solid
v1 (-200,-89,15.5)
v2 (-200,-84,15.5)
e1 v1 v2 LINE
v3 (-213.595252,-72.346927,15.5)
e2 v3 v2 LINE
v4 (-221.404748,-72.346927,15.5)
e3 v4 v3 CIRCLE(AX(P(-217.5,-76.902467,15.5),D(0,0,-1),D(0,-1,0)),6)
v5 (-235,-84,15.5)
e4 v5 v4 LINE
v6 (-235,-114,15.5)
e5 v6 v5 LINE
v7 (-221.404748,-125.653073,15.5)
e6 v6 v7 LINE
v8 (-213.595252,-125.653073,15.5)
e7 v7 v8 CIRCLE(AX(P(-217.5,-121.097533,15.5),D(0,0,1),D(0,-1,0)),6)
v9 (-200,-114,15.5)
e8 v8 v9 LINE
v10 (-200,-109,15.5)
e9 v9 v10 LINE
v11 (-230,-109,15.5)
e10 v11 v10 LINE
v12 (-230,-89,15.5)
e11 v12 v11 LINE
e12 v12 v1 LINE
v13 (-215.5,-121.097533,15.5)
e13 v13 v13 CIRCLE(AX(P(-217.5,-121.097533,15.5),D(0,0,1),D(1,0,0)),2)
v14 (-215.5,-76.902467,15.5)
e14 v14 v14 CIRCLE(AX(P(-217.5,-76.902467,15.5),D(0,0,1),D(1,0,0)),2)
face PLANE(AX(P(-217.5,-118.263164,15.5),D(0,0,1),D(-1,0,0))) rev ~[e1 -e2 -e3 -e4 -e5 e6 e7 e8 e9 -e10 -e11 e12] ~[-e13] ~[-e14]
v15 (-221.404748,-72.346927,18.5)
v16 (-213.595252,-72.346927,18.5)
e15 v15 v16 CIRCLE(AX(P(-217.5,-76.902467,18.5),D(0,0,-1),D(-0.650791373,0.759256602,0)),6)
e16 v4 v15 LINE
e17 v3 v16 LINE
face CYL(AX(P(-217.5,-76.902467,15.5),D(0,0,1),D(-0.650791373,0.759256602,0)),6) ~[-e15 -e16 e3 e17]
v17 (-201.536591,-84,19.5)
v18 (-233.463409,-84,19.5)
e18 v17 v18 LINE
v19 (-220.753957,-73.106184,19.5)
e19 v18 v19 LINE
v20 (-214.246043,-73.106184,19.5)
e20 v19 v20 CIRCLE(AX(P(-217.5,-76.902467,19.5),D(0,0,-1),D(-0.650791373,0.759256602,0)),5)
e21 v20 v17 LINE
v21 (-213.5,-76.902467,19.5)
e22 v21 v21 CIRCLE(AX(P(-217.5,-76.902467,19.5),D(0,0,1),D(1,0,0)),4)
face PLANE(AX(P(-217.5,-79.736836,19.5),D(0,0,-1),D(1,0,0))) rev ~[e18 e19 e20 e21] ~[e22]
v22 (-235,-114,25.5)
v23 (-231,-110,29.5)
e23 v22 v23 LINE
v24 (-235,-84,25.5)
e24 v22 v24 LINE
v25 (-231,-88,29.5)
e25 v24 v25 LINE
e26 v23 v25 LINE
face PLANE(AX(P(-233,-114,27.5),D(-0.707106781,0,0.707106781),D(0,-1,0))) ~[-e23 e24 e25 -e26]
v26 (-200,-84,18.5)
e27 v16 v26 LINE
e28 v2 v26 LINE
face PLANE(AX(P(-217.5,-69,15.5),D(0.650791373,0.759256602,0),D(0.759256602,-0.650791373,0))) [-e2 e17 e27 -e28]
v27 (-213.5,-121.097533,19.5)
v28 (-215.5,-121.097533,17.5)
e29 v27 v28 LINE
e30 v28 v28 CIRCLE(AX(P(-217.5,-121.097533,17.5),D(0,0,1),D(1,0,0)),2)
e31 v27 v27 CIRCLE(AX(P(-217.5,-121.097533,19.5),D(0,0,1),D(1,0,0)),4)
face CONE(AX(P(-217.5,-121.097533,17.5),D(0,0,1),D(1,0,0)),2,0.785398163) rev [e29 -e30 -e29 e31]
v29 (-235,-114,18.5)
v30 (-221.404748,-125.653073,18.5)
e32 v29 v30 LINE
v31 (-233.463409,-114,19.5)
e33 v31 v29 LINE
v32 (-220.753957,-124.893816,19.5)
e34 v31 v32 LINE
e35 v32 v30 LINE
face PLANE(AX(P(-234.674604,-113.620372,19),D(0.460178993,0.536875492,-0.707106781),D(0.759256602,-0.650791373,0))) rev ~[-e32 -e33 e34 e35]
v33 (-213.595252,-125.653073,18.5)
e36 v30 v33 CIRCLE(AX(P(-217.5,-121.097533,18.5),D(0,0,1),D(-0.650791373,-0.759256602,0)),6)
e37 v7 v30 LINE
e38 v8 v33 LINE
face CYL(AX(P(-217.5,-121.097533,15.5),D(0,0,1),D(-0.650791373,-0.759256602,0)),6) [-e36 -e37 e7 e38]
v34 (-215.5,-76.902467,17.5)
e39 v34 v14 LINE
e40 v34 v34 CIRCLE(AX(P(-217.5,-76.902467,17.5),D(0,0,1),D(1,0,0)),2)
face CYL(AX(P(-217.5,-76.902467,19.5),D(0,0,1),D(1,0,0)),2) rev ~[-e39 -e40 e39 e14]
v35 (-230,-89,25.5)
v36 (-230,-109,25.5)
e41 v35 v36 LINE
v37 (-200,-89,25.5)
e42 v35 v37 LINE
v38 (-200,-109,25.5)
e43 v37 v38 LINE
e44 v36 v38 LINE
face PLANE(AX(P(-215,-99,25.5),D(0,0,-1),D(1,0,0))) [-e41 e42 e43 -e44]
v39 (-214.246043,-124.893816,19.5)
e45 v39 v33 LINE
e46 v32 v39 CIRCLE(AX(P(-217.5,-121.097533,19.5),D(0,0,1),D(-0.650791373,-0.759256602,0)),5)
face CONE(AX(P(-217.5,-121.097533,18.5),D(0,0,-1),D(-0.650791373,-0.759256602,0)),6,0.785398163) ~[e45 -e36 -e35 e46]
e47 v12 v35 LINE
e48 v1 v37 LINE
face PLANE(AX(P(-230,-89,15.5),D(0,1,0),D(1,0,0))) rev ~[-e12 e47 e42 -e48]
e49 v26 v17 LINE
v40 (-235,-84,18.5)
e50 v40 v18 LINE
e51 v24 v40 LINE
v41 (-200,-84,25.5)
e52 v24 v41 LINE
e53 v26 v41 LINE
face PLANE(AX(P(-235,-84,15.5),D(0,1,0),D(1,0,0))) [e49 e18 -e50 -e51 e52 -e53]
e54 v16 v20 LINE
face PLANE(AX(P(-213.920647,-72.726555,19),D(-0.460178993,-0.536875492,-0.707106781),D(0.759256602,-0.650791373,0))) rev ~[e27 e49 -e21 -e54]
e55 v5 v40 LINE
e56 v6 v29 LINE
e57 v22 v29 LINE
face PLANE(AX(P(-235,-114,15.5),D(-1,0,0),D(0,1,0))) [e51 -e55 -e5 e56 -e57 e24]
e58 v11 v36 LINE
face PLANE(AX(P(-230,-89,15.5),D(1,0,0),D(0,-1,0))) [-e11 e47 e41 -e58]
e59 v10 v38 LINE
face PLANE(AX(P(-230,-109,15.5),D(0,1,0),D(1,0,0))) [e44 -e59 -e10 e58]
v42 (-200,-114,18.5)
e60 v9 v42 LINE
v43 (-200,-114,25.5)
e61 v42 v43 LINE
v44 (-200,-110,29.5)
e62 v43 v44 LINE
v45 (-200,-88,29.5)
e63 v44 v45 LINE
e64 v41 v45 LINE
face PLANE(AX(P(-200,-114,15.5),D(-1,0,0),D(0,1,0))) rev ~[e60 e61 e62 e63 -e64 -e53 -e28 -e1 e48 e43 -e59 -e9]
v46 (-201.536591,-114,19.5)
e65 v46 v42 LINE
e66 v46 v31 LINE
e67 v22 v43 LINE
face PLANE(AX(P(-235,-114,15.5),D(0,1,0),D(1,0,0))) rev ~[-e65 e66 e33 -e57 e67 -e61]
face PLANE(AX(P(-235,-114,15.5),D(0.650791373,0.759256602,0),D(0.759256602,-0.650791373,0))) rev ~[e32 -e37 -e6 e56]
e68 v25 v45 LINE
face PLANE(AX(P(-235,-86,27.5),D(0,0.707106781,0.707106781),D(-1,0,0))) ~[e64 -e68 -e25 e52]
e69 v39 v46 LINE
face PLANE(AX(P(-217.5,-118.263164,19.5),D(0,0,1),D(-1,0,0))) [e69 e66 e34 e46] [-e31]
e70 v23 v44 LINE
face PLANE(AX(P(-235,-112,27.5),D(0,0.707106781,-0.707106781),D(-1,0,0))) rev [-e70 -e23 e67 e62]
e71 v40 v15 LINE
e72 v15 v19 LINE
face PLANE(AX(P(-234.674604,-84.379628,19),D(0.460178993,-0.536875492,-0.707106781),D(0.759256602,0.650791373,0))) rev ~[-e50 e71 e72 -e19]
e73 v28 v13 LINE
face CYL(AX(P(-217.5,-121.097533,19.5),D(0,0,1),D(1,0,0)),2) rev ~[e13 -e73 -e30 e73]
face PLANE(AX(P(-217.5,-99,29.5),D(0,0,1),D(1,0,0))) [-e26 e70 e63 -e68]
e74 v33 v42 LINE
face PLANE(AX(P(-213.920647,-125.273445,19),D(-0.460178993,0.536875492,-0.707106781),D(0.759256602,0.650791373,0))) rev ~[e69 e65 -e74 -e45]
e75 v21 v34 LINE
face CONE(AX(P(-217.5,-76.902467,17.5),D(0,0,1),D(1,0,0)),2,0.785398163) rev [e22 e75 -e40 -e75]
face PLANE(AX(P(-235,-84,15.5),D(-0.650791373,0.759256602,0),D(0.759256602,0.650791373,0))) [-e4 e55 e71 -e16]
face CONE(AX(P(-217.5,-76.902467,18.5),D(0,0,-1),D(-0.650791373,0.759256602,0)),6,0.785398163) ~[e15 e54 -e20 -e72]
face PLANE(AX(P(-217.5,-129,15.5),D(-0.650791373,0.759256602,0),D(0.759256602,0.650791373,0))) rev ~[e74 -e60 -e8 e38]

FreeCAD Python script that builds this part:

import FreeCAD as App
import Part
import Sketcher

V = App.Vector
Q = App.Units.Quantity


def edges_at(feature, points):
    """Names of the edges that pass closest to the given points."""
    edges = feature.Shape.Edges
    near = lambda p: min(range(len(edges)), key=lambda i: edges[i].distToShape(Part.Vertex(*p))[0])
    return sorted({f"Edge{near(p) + 1}" for p in points})

doc = App.newDocument("Part")
body = doc.addObject("PartDesign::Body", "Body")

# Sketch on XY plane
sketch1 = body.newObject("Sketcher::SketchObject", "Sketch")
sketch1.AttachmentSupport = (doc.getObject("XY_Plane"), [""])
sketch1.MapMode = "FlatFace"
sketch1.addGeometry(Part.LineSegment(V(-235, -84, 0), V(-235, -114, 0)), False)
sketch1.addGeometry(Part.LineSegment(V(-235, -114, 0), V(-200, -114, 0)), False)
sketch1.addGeometry(Part.LineSegment(V(-200, -114, 0), V(-200, -84, 0)), False)
sketch1.addGeometry(Part.LineSegment(V(-200, -84, 0), V(-235, -84, 0)), False)
sketch1.addConstraint(Sketcher.Constraint("Coincident", 0, 2, 1, 1))
sketch1.addConstraint(Sketcher.Constraint("Coincident", 1, 2, 2, 1))
sketch1.addConstraint(Sketcher.Constraint("Coincident", 2, 2, 3, 1))
sketch1.addConstraint(Sketcher.Constraint("Coincident", 3, 2, 0, 1))
sketch1.addConstraint(Sketcher.Constraint("Vertical", 0))
sketch1.addConstraint(Sketcher.Constraint("Horizontal", 1))
sketch1.addConstraint(Sketcher.Constraint("Vertical", 2))
sketch1.addConstraint(Sketcher.Constraint("Horizontal", 3))
sketch1.addConstraint(Sketcher.Constraint("DistanceX", 1, 1, 1, 2, Q("35 mm")))
sketch1.addConstraint(Sketcher.Constraint("DistanceY", 0, 2, 0, 1, Q("30 mm")))
sketch1.addConstraint(Sketcher.Constraint("DistanceX", 0, 2, -1, 1, Q("235 mm")))
sketch1.addConstraint(Sketcher.Constraint("DistanceY", 0, 2, -1, 1, Q("114 mm")))
pad1 = body.newObject("PartDesign::Pad", "Pad")
pad1.Profile = sketch1
pad1.Length = 14

# Sketch on XY plane
sketch2 = body.newObject("Sketcher::SketchObject", "Sketch001")
sketch2.AttachmentSupport = (doc.getObject("XY_Plane"), [""])
sketch2.MapMode = "FlatFace"
sketch2.addGeometry(Part.LineSegment(V(-230, -109, 0), V(-230, -89, 0)), False)
sketch2.addGeometry(Part.LineSegment(V(-230, -89, 0), V(-200, -89, 0)), False)
sketch2.addGeometry(Part.LineSegment(V(-200, -89, 0), V(-200, -109, 0)), False)
sketch2.addGeometry(Part.LineSegment(V(-200, -109, 0), V(-230, -109, 0)), False)
sketch2.addConstraint(Sketcher.Constraint("Coincident", 0, 2, 1, 1))
sketch2.addConstraint(Sketcher.Constraint("Coincident", 1, 2, 2, 1))
sketch2.addConstraint(Sketcher.Constraint("Coincident", 2, 2, 3, 1))
sketch2.addConstraint(Sketcher.Constraint("Coincident", 3, 2, 0, 1))
sketch2.addConstraint(Sketcher.Constraint("Vertical", 0))
sketch2.addConstraint(Sketcher.Constraint("Horizontal", 1))
sketch2.addConstraint(Sketcher.Constraint("Vertical", 2))
sketch2.addConstraint(Sketcher.Constraint("Horizontal", 3))
sketch2.addConstraint(Sketcher.Constraint("DistanceX", 1, 1, 1, 2, Q("30 mm")))
sketch2.addConstraint(Sketcher.Constraint("DistanceY", 0, 1, 0, 2, Q("20 mm")))
sketch2.addConstraint(Sketcher.Constraint("DistanceX", 0, 2, -1, 1, Q("230 mm")))
sketch2.addConstraint(Sketcher.Constraint("DistanceY", 0, 2, -1, 1, Q("89 mm")))
pocket1 = body.newObject("PartDesign::Pocket", "Pocket")
pocket1.Profile = sketch2
pocket1.Length = 10
pocket1.Reversed = True

# Sketch on XY plane
sketch3 = body.newObject("Sketcher::SketchObject", "Sketch002")
sketch3.AttachmentSupport = (doc.getObject("XY_Plane"), [""])
sketch3.MapMode = "FlatFace"
sketch3.addGeometry(Part.LineSegment(V(-217.5, -129, 0), V(-235, -114, 0)), False)
sketch3.addGeometry(Part.LineSegment(V(-235, -114, 0), V(-200, -114, 0)), False)
sketch3.addGeometry(Part.LineSegment(V(-200, -114, 0), V(-217.5, -129, 0)), False)
sketch3.addGeometry(Part.LineSegment(V(-235, -84, 0), V(-217.5, -69, 0)), False)
sketch3.addGeometry(Part.LineSegment(V(-217.5, -69, 0), V(-200, -84, 0)), False)
sketch3.addGeometry(Part.LineSegment(V(-200, -84, 0), V(-235, -84, 0)), False)
sketch3.addConstraint(Sketcher.Constraint("Coincident", 0, 2, 1, 1))
sketch3.addConstraint(Sketcher.Constraint("Coincident", 1, 2, 2, 1))
sketch3.addConstraint(Sketcher.Constraint("Coincident", 2, 2, 0, 1))
sketch3.addConstraint(Sketcher.Constraint("Coincident", 3, 2, 4, 1))
sketch3.addConstraint(Sketcher.Constraint("Coincident", 4, 2, 5, 1))
sketch3.addConstraint(Sketcher.Constraint("Coincident", 5, 2, 3, 1))
sketch3.addConstraint(Sketcher.Constraint("Horizontal", 1))
sketch3.addConstraint(Sketcher.Constraint("Horizontal", 5))
sketch3.addConstraint(Sketcher.Constraint("Parallel", 2, 3))
sketch3.addConstraint(Sketcher.Constraint("Parallel", 0, 4))
sketch3.addConstraint(Sketcher.Constraint("Vertical", 2, 2, 3, 2))
sketch3.addConstraint(Sketcher.Constraint("Vertical", 1, 2, 4, 2))
sketch3.addConstraint(Sketcher.Constraint("Vertical", 0, 2, 5, 2))
sketch3.addConstraint(Sketcher.Constraint("DistanceX", 1, 1, 1, 2, Q("35 mm")))
sketch3.addConstraint(Sketcher.Constraint("DistanceX", 0, 2, -1, 1, Q("235 mm")))
sketch3.addConstraint(Sketcher.Constraint("DistanceY", 0, 2, -1, 1, Q("114 mm")))
sketch3.addConstraint(Sketcher.Constraint("DistanceY", 2, 2, -1, 1, Q("129 mm")))
sketch3.addConstraint(Sketcher.Constraint("DistanceY", 3, 2, -1, 1, Q("69 mm")))
pad2 = body.newObject("PartDesign::Pad", "Pad001")
pad2.Profile = sketch3
pad2.Length = 4
doc.recompute()

fillet = body.newObject("PartDesign::Fillet", "Fillet")
fillet.Base = (pad2, edges_at(pad2, [(-217.5, -129, 2), (-217.5, -69, 2)]))
fillet.Radius = 6

# Sketch on XY plane
sketch4 = body.newObject("Sketcher::SketchObject", "Sketch003")
sketch4.AttachmentSupport = (doc.getObject("XY_Plane"), [""])
sketch4.MapMode = "FlatFace"
sketch4.AttachmentOffset = App.Placement(V(0, 0, 4), App.Rotation())
sketch4.addGeometry(Part.Circle(V(-217.5, -76.902467, 0), V(0, 0, 1), 2), False)
sketch4.addGeometry(Part.Circle(V(-217.5, -121.097533, 0), V(0, 0, 1), 2), False)
sketch4.addConstraint(Sketcher.Constraint("Equal", 0, 1))
sketch4.addConstraint(Sketcher.Constraint("Vertical", 0, 3, 1, 3))
sketch4.addConstraint(Sketcher.Constraint("Diameter", 0, Q("4 mm")))
sketch4.addConstraint(Sketcher.Constraint("DistanceX", 0, 3, -1, 1, Q("217.5 mm")))
sketch4.addConstraint(Sketcher.Constraint("DistanceY", 0, 3, -1, 1, Q("76.902467 mm")))
sketch4.addConstraint(Sketcher.Constraint("DistanceY", 1, 3, -1, 1, Q("121.097533 mm")))
pocket2 = body.newObject("PartDesign::Pocket", "Pocket001")
pocket2.Profile = sketch4
pocket2.Type = "ThroughAll"
doc.recompute()

chamfer = body.newObject("PartDesign::Chamfer", "Chamfer")
chamfer.Base = (pocket2, edges_at(pocket2, [(-235, -99, 14), (-217.5, -114, 14), (-217.5, -84, 14)]))
chamfer.Size = 4
doc.recompute()

chamfer2 = body.newObject("PartDesign::Chamfer", "Chamfer001")
chamfer2.Base = (chamfer, edges_at(chamfer, [(-219.5, -121.098, 4), (-219.5, -76.902, 4)]))
chamfer2.Size = 2
doc.recompute()

chamfer3 = body.newObject("PartDesign::Chamfer", "Chamfer002")
chamfer3.Base = (chamfer2, edges_at(chamfer2, [(-217.5, -127.098, 4), (-217.5, -70.902, 4)]))
chamfer3.Size = 1
body2 = doc.addObject("PartDesign::Body", "Body001")
doc.recompute()

body.Placement = App.Placement(V(0, 0, 15.5), App.Rotation(V(0, 0, 1), 0))
boolean = body2.newObject("PartDesign::Boolean", "Boolean")
boolean.Type = "Fuse"
boolean.addObjects([body])

doc.recompute()
